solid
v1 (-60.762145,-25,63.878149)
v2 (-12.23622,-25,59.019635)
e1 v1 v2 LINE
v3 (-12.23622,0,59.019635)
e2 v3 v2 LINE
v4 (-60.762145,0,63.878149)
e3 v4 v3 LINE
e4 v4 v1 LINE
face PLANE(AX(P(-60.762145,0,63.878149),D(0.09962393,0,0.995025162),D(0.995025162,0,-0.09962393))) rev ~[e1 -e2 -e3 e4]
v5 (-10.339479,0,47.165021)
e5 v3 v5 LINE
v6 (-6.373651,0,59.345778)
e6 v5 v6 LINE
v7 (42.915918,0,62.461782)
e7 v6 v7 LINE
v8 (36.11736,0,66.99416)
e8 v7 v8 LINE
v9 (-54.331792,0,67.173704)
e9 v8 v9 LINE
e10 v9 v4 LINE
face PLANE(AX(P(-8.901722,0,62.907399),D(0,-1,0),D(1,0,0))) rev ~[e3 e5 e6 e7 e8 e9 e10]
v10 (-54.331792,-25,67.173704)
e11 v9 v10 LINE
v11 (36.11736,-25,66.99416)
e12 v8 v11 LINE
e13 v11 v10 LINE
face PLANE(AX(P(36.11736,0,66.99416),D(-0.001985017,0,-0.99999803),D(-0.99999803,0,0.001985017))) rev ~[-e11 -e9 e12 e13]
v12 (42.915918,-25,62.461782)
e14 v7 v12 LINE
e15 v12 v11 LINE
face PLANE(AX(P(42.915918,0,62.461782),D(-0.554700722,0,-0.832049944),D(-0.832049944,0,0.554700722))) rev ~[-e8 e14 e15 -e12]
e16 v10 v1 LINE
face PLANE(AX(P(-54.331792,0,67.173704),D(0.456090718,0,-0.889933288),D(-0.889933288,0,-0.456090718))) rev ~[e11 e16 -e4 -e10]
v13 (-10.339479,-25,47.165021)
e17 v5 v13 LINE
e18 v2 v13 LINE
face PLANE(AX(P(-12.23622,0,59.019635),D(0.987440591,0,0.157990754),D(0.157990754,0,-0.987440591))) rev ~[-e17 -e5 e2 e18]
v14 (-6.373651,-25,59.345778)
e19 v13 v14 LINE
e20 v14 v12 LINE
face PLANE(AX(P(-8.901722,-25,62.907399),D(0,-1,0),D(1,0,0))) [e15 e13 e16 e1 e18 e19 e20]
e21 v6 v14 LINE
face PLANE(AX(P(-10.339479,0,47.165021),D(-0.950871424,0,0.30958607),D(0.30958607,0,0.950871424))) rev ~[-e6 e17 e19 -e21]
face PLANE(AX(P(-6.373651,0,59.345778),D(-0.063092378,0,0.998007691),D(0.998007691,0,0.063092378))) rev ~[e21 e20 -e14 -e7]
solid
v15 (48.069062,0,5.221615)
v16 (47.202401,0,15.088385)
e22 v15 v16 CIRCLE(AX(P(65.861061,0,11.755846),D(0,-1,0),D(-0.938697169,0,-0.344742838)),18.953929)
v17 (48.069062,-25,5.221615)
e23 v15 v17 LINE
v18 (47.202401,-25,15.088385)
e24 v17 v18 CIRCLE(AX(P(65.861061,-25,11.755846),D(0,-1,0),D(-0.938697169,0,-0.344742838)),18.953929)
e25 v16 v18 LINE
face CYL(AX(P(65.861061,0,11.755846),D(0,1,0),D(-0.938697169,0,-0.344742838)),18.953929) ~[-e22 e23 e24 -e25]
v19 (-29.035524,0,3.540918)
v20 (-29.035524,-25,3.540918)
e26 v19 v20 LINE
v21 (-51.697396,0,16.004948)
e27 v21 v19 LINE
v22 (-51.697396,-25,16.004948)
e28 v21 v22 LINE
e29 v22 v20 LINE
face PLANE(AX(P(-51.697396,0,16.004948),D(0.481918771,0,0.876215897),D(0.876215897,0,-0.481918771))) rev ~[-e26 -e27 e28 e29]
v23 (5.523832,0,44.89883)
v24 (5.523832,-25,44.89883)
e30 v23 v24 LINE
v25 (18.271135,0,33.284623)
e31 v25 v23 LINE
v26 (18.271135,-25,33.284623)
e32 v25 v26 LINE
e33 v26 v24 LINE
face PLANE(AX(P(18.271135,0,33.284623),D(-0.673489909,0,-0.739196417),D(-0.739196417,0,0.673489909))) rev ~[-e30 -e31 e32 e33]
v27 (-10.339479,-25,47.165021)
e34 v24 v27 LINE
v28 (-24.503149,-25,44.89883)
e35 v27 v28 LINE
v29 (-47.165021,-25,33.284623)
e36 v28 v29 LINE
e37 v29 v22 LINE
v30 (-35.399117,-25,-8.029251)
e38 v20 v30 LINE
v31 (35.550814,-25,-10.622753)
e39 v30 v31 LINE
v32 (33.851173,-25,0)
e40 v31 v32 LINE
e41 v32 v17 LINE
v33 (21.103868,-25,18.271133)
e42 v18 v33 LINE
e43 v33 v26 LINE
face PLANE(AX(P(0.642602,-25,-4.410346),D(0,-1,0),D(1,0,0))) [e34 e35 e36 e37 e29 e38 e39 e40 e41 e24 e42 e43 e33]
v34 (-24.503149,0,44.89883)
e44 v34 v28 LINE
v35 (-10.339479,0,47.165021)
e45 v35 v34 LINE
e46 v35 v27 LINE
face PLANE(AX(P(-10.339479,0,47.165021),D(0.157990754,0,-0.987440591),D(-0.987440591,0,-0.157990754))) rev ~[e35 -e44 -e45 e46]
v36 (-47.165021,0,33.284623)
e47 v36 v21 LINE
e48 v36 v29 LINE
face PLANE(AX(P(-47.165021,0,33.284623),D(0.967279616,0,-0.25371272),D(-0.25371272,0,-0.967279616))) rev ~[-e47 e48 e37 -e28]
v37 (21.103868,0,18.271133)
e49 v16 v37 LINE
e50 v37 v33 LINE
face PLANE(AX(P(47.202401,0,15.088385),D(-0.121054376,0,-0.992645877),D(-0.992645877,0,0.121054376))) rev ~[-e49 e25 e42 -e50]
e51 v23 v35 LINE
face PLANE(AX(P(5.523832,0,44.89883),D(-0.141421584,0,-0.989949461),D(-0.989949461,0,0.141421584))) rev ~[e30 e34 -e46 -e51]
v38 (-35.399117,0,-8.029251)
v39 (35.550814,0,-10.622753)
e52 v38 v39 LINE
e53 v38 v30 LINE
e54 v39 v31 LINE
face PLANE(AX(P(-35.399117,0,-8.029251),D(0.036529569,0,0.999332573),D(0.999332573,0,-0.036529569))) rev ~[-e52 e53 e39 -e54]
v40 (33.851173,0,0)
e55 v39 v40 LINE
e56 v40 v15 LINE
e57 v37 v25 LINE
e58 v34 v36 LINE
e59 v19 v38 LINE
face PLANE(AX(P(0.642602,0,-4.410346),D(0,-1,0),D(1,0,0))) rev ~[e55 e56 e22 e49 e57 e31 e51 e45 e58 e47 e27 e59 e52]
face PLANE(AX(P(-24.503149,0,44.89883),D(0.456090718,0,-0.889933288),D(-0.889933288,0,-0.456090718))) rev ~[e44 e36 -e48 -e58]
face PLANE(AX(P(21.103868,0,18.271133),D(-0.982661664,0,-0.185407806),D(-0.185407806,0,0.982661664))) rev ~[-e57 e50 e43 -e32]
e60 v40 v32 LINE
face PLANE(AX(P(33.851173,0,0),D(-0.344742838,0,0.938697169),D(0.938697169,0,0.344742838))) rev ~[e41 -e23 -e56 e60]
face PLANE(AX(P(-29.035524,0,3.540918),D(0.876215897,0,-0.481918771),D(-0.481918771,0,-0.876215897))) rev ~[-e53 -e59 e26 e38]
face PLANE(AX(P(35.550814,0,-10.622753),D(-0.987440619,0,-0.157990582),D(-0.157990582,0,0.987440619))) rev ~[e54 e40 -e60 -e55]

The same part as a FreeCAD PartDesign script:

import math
import FreeCAD as App
import Part
import Sketcher

V = App.Vector
Q = App.Units.Quantity

doc = App.newDocument("Part")
params = doc.addObject("Spreadsheet::Sheet", "Params")
for row, (alias, value) in enumerate([
    ("pad1_length", "25 mm"),
    ("pad2_length", "25 mm"),
], start=1):
    params.set(f"A{row}", alias)
    params.set(f"B{row}", "=" + value)
    params.setAlias(f"B{row}", alias)

body = doc.addObject("PartDesign::Body", "Body")

sketch1 = body.newObject("Sketcher::SketchObject", "Sketch")
sketch1.AttachmentSupport = (doc.getObject("XZ_Plane"), [""])
sketch1.MapMode = "FlatFace"
sketch1.addGeometry(Part.LineSegment(V(-29, 4, 0), V(-35, -8, 0)), False)
sketch1.addGeometry(Part.LineSegment(V(-35, -8, 0), V(36, -11, 0)), False)
sketch1.addGeometry(Part.LineSegment(V(36, -11, 0), V(34, 0, 0)), False)
sketch1.addGeometry(Part.LineSegment(V(34, 0, 0), V(48, 5, 0)), False)
sketch1.addGeometry(Part.ArcOfCircle(Part.Circle(V(66, 12, 0), V(0, 0, 1), 19), math.radians(-160), math.radians(170)), False)
sketch1.addGeometry(Part.LineSegment(V(47, 15, 0), V(21, 18, 0)), False)
sketch1.addGeometry(Part.LineSegment(V(21, 18, 0), V(18, 33, 0)), False)
sketch1.addGeometry(Part.LineSegment(V(18, 33, 0), V(6, 45, 0)), False)
sketch1.addGeometry(Part.LineSegment(V(6, 45, 0), V(-10, 47, 0)), False)
sketch1.addGeometry(Part.LineSegment(V(-10, 47, 0), V(-25, 45, 0)), False)
sketch1.addGeometry(Part.LineSegment(V(-25, 45, 0), V(-47, 33, 0)), False)
sketch1.addGeometry(Part.LineSegment(V(-47, 33, 0), V(-52, 16, 0)), False)
sketch1.addGeometry(Part.LineSegment(V(-52, 16, 0), V(-29, 4, 0)), False)
sketch1.addConstraint(Sketcher.Constraint("Coincident", 0, 2, 1, 1))
sketch1.addConstraint(Sketcher.Constraint("Coincident", 1, 2, 2, 1))
sketch1.addConstraint(Sketcher.Constraint("Coincident", 2, 2, 3, 1))
sketch1.addConstraint(Sketcher.Constraint("Coincident", 3, 2, 4, 1))
sketch1.addConstraint(Sketcher.Constraint("Coincident", 4, 2, 5, 1))
sketch1.addConstraint(Sketcher.Constraint("Coincident", 5, 2, 6, 1))
sketch1.addConstraint(Sketcher.Constraint("Coincident", 6, 2, 7, 1))
sketch1.addConstraint(Sketcher.Constraint("Coincident", 7, 2, 8, 1))
sketch1.addConstraint(Sketcher.Constraint("Coincident", 8, 2, 9, 1))
sketch1.addConstraint(Sketcher.Constraint("Coincident", 9, 2, 10, 1))
sketch1.addConstraint(Sketcher.Constraint("Coincident", 10, 2, 11, 1))
sketch1.addConstraint(Sketcher.Constraint("Coincident", 11, 2, 12, 1))
sketch1.addConstraint(Sketcher.Constraint("Coincident", 12, 2, 0, 1))
sketch1.addConstraint(Sketcher.Constraint("PointOnObject", 2, 2, -1))
sketch1.addConstraint(Sketcher.Constraint("Perpendicular", 2, 9))
sketch1.addConstraint(Sketcher.Constraint("Perpendicular", 0, 12))
sketch1.addConstraint(Sketcher.Constraint("Horizontal", 7, 2, 9, 2))
sketch1.addConstraint(Sketcher.Constraint("Horizontal", 6, 2, 10, 2))
sketch1.addConstraint(Sketcher.Constraint("Radius", 4, Q("18.953929 mm")))
sketch1.addConstraint(Sketcher.Constraint("DistanceX", 3, 2, 4, 3, Q("17.791999 mm")))
sketch1.addConstraint(Sketcher.Constraint("Distance", 0, Q("13.204701 mm")))
sketch1.addConstraint(Sketcher.Constraint("Distance", 11, Q("17.864199 mm")))
sketch1.addConstraint(Sketcher.Constraint("DistanceX", -1, 1, 4, 2, Q("47.202401 mm")))
sketch1.addConstraint(Sketcher.Constraint("DistanceY", 1, 2, 4, 3, Q("22.378599 mm")))
sketch1.addConstraint(Sketcher.Constraint("DistanceY", 1, 2, 0, 2, Q("2.593501 mm")))
sketch1.addConstraint(Sketcher.Constraint("DistanceY", 6, 2, 8, 2, Q("13.880398 mm")))
sketch1.addConstraint(Sketcher.Constraint("DistanceY", 0, 2, 11, 2, Q("24.034199 mm")))
sketch1.addConstraint(Sketcher.Constraint("Distance", 6, Q("15.278392 mm")))
sketch1.addConstraint(Sketcher.Constraint("Distance", 9, Q("14.34382 mm")))
sketch1.addConstraint(Sketcher.Constraint("DistanceX", -1, 1, 4, 3, Q("65.861061 mm")))
sketch1.addConstraint(Sketcher.Constraint("DistanceY", 0, 2, -1, 1, Q("8.029251 mm")))
sketch1.addConstraint(Sketcher.Constraint("DistanceX", -1, 1, 5, 2, Q("21.103868 mm")))
sketch1.addConstraint(Sketcher.Constraint("DistanceX", -1, 1, 7, 2, Q("5.523832 mm")))
sketch1.addConstraint(Sketcher.Constraint("DistanceY", -1, 1, 7, 2, Q("44.89883 mm")))
sketch1.addConstraint(Sketcher.Constraint("DistanceX", 8, 2, -1, 1, Q("10.339479 mm")))
sketch1.addConstraint(Sketcher.Constraint("DistanceY", -1, 1, 8, 2, Q("47.165021 mm")))
sketch1.addConstraint(Sketcher.Constraint("DistanceX", 10, 2, -1, 1, Q("47.165021 mm")))
sketch1.addConstraint(Sketcher.Constraint("DistanceX", 0, 2, 4, 3, Q("101.260178 mm")))
sketch1.addConstraint(Sketcher.Constraint("DistanceX", 0, 2, 1, 2, Q("70.949931 mm")))
sketch1.addConstraint(Sketcher.Constraint("DistanceY", 5, 2, 6, 2, Q("15.01349 mm")))
pad1 = body.newObject("PartDesign::Pad", "Pad")
pad1.Profile = sketch1
pad1.setExpression("Length", "Params.pad1_length")
body2 = doc.addObject("PartDesign::Body", "Body001")

sketch2 = body2.newObject("Sketcher::SketchObject", "Sketch001")
sketch2.AttachmentSupport = (doc.getObject("XZ_Plane001"), [""])
sketch2.MapMode = "FlatFace"
sketch2.addGeometry(Part.LineSegment(V(-12, 59, 0), V(-10, 47, 0)), False)
sketch2.addGeometry(Part.LineSegment(V(-10, 47, 0), V(-6, 59, 0)), False)
sketch2.addGeometry(Part.LineSegment(V(-6, 59, 0), V(43, 62, 0)), False)
sketch2.addGeometry(Part.LineSegment(V(43, 62, 0), V(36, 67, 0)), False)
sketch2.addGeometry(Part.LineSegment(V(36, 67, 0), V(-54, 67, 0)), False)
sketch2.addGeometry(Part.LineSegment(V(-54, 67, 0), V(-61, 64, 0)), False)
sketch2.addGeometry(Part.LineSegment(V(-61, 64, 0), V(-12, 59, 0)), False)
sketch2.addConstraint(Sketcher.Constraint("Coincident", 0, 2, 1, 1))
sketch2.addConstraint(Sketcher.Constraint("Coincident", 1, 2, 2, 1))
sketch2.addConstraint(Sketcher.Constraint("Coincident", 2, 2, 3, 1))
sketch2.addConstraint(Sketcher.Constraint("Coincident", 3, 2, 4, 1))
sketch2.addConstraint(Sketcher.Constraint("Coincident", 4, 2, 5, 1))
sketch2.addConstraint(Sketcher.Constraint("Coincident", 5, 2, 6, 1))
sketch2.addConstraint(Sketcher.Constraint("Coincident", 6, 2, 0, 1))
sketch2.addConstraint(Sketcher.Constraint("Distance", 1, Q("12.810099 mm")))
sketch2.addConstraint(Sketcher.Constraint("Distance", 4, Q("90.44933 mm")))
sketch2.addConstraint(Sketcher.Constraint("Distance", 6, Q("48.76854 mm")))
sketch2.addConstraint(Sketcher.Constraint("DistanceX", 0, 2, -1, 1, Q("10.339479 mm")))
sketch2.addConstraint(Sketcher.Constraint("DistanceY", -1, 1, 0, 2, Q("47.165021 mm")))
sketch2.addConstraint(Sketcher.Constraint("DistanceX", 1, 2, -1, 1, Q("6.373651 mm")))
sketch2.addConstraint(Sketcher.Constraint("DistanceX", -1, 1, 3, 2, Q("36.11736 mm")))
sketch2.addConstraint(Sketcher.Constraint("DistanceY", -1, 1, 3, 2, Q("66.99416 mm")))
sketch2.addConstraint(Sketcher.Constraint("DistanceY", -1, 1, 5, 2, Q("63.878149 mm")))
sketch2.addConstraint(Sketcher.Constraint("DistanceX", 6, 2, -1, 1, Q("12.23622 mm")))
sketch2.addConstraint(Sketcher.Constraint("DistanceX", 1, 2, 2, 2, Q("49.289569 mm")))
sketch2.addConstraint(Sketcher.Constraint("DistanceY", 0, 2, 2, 2, Q("15.296761 mm")))
sketch2.addConstraint(Sketcher.Constraint("DistanceY", 2, 2, 4, 2, Q("4.711922 mm")))
sketch2.addConstraint(Sketcher.Constraint("DistanceY", 6, 2, 4, 2, Q("8.154069 mm")))
pad2 = body2.newObject("PartDesign::Pad", "Pad001")
pad2.Profile = sketch2
pad2.setExpression("Length", "Params.pad2_length")

doc.recompute()
